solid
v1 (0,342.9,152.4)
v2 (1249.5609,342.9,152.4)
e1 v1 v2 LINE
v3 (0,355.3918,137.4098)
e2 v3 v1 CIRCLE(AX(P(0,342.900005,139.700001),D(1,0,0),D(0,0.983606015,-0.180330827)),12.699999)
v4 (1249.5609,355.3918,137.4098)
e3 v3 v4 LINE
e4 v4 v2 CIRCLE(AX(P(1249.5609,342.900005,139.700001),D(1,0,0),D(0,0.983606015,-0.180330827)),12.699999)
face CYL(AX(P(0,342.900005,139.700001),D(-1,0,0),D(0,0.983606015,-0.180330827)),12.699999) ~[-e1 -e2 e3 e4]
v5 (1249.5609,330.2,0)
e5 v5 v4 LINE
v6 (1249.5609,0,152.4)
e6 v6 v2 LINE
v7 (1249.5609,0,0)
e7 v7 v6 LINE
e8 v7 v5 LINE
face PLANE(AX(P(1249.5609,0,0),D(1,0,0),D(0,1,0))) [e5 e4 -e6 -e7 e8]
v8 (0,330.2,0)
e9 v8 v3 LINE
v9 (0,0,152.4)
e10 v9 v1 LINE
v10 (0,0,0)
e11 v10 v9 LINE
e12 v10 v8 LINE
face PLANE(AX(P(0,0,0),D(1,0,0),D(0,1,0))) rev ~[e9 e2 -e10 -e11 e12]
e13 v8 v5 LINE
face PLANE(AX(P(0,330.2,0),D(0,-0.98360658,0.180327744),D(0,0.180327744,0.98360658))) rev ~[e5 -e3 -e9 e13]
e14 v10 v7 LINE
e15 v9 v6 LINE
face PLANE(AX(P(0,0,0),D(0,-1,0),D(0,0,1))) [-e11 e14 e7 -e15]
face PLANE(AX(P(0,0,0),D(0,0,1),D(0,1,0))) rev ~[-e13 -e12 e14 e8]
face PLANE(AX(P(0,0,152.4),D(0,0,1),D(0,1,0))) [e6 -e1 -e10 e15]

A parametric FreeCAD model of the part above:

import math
import FreeCAD as App
import Part
import Sketcher
Q = App.Units.Quantity

doc = App.newDocument("Part")
body = doc.addObject("PartDesign::Body", "Body")

# Sketch on YZ plane
sketch1 = doc.addObject("Sketcher::SketchObject", "Sketch")
body.addObject(sketch1)
sketch1.AttachmentSupport = (doc.YZ_Plane, [""])
sketch1.MapMode = "FlatFace"
sketch1.addGeometry(Part.LineSegment(App.Vector(0, 152.4, 0), App.Vector(0, 0, 0)), False)
sketch1.addGeometry(Part.LineSegment(App.Vector(0, 0, 0), App.Vector(330.2, 0, 0)), False)
sketch1.addGeometry(Part.LineSegment(App.Vector(330.2, 0, 0), App.Vector(355.391779, 137.409804, 0)), False)
sketch1.addGeometry(Part.ArcOfCircle(Part.Circle(App.Vector(342.9, 139.7, 0), App.Vector(0, 0, 1), 12.700003), math.radians(-10.389021), math.radians(90)), False)
sketch1.addGeometry(Part.LineSegment(App.Vector(342.9, 152.4, 0), App.Vector(0, 152.4, 0)), False)
sketch1.addConstraint(Sketcher.Constraint("Coincident", 0, 2, 1, 1))
sketch1.addConstraint(Sketcher.Constraint("Coincident", 1, 2, 2, 1))
sketch1.addConstraint(Sketcher.Constraint("Tangent", 2, 2, 3, 1))
sketch1.addConstraint(Sketcher.Constraint("Tangent", 3, 2, 4, 1))
sketch1.addConstraint(Sketcher.Constraint("Coincident", 4, 2, 0, 1))
sketch1.addConstraint(Sketcher.Constraint("Vertical", 0))
sketch1.addConstraint(Sketcher.Constraint("Horizontal", 1))
sketch1.addConstraint(Sketcher.Constraint("Horizontal", 4))
sketch1.addConstraint(Sketcher.Constraint("Coincident", 0, 2, -1, 1))
sketch1.addConstraint(Sketcher.Constraint("Radius", 3, Q("0.5 in")))
sketch1.addConstraint(Sketcher.Constraint("DistanceX", 1, 1, 1, 2, Q("13 in")))
sketch1.addConstraint(Sketcher.Constraint("DistanceY", 0, 2, 0, 1, Q("6 in")))
sketch1.addConstraint(Sketcher.Constraint("DistanceX", 4, 2, 4, 1, Q("13.5 in")))
pad1 = doc.addObject("PartDesign::Pad", "Pad")
body.addObject(pad1)
pad1.Profile = sketch1
pad1.Length = Q("49.195311 in")

doc.recompute()
